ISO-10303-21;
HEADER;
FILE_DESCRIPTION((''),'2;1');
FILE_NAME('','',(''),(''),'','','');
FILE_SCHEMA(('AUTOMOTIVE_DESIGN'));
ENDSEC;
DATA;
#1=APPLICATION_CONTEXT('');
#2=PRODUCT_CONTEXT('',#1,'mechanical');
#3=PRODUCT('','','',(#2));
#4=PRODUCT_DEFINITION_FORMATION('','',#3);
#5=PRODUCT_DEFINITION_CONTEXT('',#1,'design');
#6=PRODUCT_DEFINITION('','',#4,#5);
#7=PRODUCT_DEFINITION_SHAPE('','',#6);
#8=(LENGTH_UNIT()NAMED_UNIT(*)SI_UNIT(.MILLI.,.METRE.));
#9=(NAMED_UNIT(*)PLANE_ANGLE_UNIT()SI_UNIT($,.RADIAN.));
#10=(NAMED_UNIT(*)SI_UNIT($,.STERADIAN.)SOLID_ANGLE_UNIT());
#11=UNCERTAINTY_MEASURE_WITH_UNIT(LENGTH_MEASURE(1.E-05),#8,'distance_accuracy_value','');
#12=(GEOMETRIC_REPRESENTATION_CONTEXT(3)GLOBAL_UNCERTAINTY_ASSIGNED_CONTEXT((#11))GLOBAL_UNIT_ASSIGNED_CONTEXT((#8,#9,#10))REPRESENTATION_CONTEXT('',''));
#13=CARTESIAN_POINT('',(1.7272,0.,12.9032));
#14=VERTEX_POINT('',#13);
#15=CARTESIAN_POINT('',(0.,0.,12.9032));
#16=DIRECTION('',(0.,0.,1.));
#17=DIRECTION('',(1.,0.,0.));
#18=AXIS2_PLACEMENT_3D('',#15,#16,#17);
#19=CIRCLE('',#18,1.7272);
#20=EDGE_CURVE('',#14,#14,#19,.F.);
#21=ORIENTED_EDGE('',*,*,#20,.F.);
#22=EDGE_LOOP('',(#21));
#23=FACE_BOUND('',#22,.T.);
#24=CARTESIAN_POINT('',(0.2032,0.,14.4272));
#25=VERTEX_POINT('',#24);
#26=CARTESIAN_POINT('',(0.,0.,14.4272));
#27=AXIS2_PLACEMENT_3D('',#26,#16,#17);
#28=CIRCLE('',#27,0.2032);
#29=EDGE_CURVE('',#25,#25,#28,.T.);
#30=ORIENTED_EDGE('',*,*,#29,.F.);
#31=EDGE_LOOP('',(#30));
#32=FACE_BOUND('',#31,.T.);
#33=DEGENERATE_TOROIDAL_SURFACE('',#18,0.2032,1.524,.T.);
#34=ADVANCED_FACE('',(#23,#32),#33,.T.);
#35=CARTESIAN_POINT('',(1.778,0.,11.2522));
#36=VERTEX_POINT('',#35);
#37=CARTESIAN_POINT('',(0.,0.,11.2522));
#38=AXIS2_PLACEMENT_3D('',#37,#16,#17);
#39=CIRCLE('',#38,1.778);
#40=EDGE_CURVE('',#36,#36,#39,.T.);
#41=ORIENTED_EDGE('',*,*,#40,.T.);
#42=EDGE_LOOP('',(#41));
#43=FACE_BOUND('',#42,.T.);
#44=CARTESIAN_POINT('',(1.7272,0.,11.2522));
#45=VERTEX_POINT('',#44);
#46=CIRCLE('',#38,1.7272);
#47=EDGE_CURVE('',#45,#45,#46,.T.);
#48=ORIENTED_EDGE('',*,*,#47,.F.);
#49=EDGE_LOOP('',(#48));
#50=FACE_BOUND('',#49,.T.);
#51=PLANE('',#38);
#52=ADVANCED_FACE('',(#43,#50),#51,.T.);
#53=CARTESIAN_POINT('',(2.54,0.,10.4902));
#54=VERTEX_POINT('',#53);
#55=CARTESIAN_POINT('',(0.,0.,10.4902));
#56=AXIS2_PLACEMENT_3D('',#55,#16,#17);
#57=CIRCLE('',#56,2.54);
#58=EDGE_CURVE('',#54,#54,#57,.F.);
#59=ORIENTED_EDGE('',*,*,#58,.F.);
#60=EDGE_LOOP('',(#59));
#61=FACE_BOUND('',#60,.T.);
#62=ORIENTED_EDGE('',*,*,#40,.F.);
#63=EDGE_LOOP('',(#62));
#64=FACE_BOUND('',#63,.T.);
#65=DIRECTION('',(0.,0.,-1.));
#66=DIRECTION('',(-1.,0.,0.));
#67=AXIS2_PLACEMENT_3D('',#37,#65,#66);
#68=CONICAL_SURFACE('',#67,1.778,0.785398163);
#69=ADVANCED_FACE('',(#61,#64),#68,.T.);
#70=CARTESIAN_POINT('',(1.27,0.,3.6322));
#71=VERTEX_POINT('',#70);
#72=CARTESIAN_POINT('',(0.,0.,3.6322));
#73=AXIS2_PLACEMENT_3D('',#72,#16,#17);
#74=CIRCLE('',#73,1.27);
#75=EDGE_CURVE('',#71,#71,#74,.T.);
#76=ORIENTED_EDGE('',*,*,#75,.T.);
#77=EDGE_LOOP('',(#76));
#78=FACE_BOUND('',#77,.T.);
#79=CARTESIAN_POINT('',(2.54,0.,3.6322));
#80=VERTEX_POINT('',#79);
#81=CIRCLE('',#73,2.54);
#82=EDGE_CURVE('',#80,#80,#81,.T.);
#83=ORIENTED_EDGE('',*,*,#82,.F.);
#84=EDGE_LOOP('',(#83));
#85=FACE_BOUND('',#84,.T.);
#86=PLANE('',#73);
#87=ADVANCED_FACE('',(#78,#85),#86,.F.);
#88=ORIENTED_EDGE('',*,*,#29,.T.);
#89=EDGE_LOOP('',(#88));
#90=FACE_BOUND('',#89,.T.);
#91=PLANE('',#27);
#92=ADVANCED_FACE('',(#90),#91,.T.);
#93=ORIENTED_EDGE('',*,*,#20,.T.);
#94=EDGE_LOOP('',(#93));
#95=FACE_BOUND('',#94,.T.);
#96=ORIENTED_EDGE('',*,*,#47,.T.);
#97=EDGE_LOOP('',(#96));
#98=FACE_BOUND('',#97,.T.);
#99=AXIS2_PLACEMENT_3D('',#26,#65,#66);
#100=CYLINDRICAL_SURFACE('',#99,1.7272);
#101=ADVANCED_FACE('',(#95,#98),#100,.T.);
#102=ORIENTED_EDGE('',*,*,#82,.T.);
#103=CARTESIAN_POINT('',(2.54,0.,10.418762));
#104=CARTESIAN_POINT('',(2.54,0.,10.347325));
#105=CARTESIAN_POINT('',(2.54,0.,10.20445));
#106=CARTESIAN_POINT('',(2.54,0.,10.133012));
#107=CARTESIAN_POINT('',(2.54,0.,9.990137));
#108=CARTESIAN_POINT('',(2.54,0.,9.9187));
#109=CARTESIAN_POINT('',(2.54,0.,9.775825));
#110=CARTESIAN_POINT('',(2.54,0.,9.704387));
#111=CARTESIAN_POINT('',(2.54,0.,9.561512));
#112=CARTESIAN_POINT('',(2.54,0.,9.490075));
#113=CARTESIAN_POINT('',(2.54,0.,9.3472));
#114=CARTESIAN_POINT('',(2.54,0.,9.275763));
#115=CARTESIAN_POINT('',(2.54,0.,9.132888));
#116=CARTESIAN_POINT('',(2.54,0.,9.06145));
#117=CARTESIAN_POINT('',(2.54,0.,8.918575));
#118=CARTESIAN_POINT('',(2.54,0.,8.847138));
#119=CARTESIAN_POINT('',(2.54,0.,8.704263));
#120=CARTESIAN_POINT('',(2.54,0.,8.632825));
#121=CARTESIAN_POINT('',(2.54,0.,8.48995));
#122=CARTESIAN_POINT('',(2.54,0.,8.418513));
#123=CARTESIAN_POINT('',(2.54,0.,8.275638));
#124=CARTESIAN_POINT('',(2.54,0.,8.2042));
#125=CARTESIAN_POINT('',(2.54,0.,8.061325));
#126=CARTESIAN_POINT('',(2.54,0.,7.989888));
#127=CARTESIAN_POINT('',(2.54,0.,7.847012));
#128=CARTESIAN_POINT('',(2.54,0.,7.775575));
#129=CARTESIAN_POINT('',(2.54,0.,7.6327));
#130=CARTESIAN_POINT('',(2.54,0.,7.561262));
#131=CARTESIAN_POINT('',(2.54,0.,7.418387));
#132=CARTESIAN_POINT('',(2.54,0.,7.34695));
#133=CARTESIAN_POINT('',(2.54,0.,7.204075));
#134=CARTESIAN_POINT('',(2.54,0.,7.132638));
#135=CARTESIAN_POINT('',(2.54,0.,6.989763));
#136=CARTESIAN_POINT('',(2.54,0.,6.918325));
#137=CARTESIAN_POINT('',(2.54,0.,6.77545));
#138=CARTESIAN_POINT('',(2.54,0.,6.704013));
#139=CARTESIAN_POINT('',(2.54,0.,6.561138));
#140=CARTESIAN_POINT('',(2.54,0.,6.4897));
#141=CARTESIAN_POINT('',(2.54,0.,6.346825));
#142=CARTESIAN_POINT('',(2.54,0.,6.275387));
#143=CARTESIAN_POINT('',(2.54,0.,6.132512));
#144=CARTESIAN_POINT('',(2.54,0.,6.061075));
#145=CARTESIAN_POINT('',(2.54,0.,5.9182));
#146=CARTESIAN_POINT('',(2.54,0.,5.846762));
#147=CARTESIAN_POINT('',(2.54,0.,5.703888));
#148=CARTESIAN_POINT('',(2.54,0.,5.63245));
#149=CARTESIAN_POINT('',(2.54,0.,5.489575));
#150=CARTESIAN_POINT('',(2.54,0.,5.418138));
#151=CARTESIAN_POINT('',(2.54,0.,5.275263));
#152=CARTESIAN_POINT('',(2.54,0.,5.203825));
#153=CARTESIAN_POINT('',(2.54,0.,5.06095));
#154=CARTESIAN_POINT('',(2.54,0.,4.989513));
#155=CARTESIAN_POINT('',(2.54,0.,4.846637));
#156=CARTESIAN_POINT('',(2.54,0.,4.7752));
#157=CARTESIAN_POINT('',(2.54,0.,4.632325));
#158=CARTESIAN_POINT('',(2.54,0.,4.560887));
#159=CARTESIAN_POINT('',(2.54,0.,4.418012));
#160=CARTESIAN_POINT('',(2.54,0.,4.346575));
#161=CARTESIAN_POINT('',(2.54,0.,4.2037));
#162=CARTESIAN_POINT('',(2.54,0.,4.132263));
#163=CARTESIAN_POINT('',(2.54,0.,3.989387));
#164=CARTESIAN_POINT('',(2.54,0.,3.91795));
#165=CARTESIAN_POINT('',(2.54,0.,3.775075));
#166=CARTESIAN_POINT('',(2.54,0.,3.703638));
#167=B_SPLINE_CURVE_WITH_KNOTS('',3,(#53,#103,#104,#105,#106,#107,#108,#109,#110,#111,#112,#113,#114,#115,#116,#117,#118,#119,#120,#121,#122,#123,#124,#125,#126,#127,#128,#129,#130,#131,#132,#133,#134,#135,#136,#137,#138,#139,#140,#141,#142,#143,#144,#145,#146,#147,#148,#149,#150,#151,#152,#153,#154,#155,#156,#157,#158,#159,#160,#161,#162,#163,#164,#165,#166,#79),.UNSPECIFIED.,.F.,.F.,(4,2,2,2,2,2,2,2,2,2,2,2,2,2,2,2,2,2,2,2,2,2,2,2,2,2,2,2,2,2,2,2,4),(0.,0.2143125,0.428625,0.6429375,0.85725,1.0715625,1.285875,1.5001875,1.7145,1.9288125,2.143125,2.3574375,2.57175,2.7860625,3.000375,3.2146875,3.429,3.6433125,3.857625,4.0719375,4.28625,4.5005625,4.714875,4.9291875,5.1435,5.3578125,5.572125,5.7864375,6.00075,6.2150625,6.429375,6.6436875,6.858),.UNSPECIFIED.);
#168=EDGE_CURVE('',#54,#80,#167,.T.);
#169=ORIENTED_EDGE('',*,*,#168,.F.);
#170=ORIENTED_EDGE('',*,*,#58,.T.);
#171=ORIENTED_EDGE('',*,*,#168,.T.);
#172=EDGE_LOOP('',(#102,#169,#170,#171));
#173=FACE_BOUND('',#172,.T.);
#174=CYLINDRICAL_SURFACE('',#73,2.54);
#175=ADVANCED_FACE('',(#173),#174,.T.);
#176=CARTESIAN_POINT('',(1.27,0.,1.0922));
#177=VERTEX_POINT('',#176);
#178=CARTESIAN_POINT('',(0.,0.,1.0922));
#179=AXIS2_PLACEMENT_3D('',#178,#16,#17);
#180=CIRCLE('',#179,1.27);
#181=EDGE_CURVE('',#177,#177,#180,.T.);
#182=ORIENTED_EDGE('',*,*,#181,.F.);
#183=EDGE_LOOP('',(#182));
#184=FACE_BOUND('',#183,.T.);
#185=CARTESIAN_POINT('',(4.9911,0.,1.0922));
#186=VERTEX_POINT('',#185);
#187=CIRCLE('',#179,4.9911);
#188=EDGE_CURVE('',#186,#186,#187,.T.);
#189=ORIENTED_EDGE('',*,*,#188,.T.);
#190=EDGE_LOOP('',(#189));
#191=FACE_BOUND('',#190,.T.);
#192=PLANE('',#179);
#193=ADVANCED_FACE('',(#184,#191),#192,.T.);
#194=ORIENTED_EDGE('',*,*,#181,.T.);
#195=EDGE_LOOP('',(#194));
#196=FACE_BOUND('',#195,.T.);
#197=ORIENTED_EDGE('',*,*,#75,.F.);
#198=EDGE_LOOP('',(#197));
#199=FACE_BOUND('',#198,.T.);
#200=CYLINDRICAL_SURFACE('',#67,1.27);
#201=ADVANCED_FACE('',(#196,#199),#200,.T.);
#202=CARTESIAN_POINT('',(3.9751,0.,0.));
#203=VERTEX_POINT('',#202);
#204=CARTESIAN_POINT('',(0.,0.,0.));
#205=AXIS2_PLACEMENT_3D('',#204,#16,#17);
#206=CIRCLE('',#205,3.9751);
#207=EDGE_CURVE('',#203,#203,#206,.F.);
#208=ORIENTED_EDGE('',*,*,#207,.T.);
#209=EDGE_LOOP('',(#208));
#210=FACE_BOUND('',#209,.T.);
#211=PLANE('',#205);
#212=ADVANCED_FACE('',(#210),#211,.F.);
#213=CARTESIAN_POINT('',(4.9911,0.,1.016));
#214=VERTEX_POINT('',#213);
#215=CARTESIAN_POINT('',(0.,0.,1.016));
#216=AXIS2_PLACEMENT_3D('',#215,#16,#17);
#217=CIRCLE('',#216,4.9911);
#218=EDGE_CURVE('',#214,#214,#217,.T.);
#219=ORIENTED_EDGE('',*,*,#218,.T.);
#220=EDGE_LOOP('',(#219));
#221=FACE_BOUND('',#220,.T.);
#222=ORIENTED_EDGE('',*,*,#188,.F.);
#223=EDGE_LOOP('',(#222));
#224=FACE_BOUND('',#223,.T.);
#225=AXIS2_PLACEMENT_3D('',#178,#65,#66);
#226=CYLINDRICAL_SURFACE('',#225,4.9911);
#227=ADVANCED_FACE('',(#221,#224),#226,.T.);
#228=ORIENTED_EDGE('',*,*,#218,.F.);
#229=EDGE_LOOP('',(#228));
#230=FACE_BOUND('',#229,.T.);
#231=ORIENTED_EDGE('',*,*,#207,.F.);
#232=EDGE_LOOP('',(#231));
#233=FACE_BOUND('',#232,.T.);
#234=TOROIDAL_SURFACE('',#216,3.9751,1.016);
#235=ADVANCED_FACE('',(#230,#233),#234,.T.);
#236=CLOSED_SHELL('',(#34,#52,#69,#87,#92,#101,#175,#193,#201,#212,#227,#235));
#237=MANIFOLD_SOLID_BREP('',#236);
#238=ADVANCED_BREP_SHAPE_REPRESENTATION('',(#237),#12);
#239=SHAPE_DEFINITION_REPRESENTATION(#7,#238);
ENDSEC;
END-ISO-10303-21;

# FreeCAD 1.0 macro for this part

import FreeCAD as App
import Part
import Sketcher

V = App.Vector
Q = App.Units.Quantity


def edges_at(feature, points):
    """Names of the edges that pass closest to the given points."""
    edges = feature.Shape.Edges
    near = lambda p: min(range(len(edges)), key=lambda i: edges[i].distToShape(Part.Vertex(*p))[0])
    return sorted({f"Edge{near(p) + 1}" for p in points})

doc = App.newDocument("Part")
params = doc.addObject("Spreadsheet::Sheet", "Params")
for row, (alias, value) in enumerate([
    ("sketch1_diameter", "0.393 in"),
    ("pad1_length", "0.043 in"),
    ("sketch2_diameter", "0.1 in"),
    ("pad2_length", "0.4 in"),
    ("sketch3_diameter", "0.2 in"),
    ("pad3_length", "0.3 in"),
    ("sketch4_diameter", "0.136 in"),
    ("pad4_length", "0.125 in"),
    ("fillet_radius", "0.06 in"),
    ("chamfer_size", "0.03 in"),
    ("fillet2_radius", "0.04 in"),
], start=1):
    params.set(f"A{row}", alias)
    params.set(f"B{row}", "=" + value)
    params.setAlias(f"B{row}", alias)

body = doc.addObject("PartDesign::Body", "Body")

sketch1 = body.newObject("Sketcher::SketchObject", "Sketch")
sketch1.AttachmentSupport = (doc.getObject("XY_Plane"), [""])
sketch1.MapMode = "FlatFace"
sketch1.addGeometry(Part.Circle(V(0, 0, 0), V(0, 0, 1), 5), False)
sketch1.addConstraint([
    Sketcher.Constraint("Coincident", 0, 3, -1, 1),
    Sketcher.Constraint("Diameter", 0, Q("0.393 in")),
])
sketch1.setExpression("Constraints[1]", "Params.sketch1_diameter")
pad1 = body.newObject("PartDesign::Pad", "Pad")
pad1.Profile = sketch1
pad1.setExpression("Length", "Params.pad1_length")

sketch2 = body.newObject("Sketcher::SketchObject", "Sketch001")
sketch2.AttachmentSupport = (doc.getObject("XY_Plane"), [""])
sketch2.MapMode = "FlatFace"
sketch2.AttachmentOffset = App.Placement(V(0, 0, 0.043 * 25.4), App.Rotation())
sketch2.addGeometry(Part.Circle(V(0, 0, 0), V(0, 0, 1), 1.3), False)
sketch2.addConstraint([
    Sketcher.Constraint("Coincident", 0, 3, -1, 1),
    Sketcher.Constraint("Diameter", 0, Q("0.1 in")),
])
sketch2.setExpression("Constraints[1]", "Params.sketch2_diameter")
pad2 = body.newObject("PartDesign::Pad", "Pad001")
pad2.Profile = sketch2
pad2.setExpression("Length", "Params.pad2_length")

sketch3 = body.newObject("Sketcher::SketchObject", "Sketch002")
sketch3.AttachmentSupport = (doc.getObject("XY_Plane"), [""])
sketch3.MapMode = "FlatFace"
sketch3.AttachmentOffset = App.Placement(V(0, 0, 0.443 * 25.4), App.Rotation())
sketch3.addGeometry(Part.Circle(V(0, 0, 0), V(0, 0, 1), 2.5), False)
sketch3.addConstraint([
    Sketcher.Constraint("Coincident", 0, 3, -1, 1),
    Sketcher.Constraint("Diameter", 0, Q("0.2 in")),
])
sketch3.setExpression("Constraints[1]", "Params.sketch3_diameter")
pad3 = body.newObject("PartDesign::Pad", "Pad002")
pad3.Profile = sketch3
pad3.setExpression("Length", "Params.pad3_length")
pad3.Reversed = True

sketch4 = body.newObject("Sketcher::SketchObject", "Sketch003")
sketch4.AttachmentSupport = (doc.getObject("XY_Plane"), [""])
sketch4.MapMode = "FlatFace"
sketch4.AttachmentOffset = App.Placement(V(0, 0, 0.443 * 25.4), App.Rotation())
sketch4.addGeometry(Part.Circle(V(0, 0, 0), V(0, 0, 1), 1.7), False)
sketch4.addConstraint([
    Sketcher.Constraint("Coincident", 0, 3, -1, 1),
    Sketcher.Constraint("Diameter", 0, Q("0.136 in")),
])
sketch4.setExpression("Constraints[1]", "Params.sketch4_diameter")
pad4 = body.newObject("PartDesign::Pad", "Pad003")
pad4.Profile = sketch4
pad4.setExpression("Length", "Params.pad4_length")
doc.recompute()

fillet = body.newObject("PartDesign::Fillet", "Fillet")
fillet.Base = (pad4, edges_at(pad4, [(-1.727, 0, 14.427)]))
fillet.setExpression("Radius", "Params.fillet_radius")
doc.recompute()

chamfer = body.newObject("PartDesign::Chamfer", "Chamfer")
chamfer.Base = (fillet, edges_at(fillet, [(-2.54, 0, 11.252)]))
chamfer.setExpression("Size", "Params.chamfer_size")
doc.recompute()

fillet2 = body.newObject("PartDesign::Fillet", "Fillet001")
fillet2.Base = (chamfer, edges_at(chamfer, [(-4.991, 0, 0)]))
fillet2.setExpression("Radius", "Params.fillet2_radius")

doc.recompute()
